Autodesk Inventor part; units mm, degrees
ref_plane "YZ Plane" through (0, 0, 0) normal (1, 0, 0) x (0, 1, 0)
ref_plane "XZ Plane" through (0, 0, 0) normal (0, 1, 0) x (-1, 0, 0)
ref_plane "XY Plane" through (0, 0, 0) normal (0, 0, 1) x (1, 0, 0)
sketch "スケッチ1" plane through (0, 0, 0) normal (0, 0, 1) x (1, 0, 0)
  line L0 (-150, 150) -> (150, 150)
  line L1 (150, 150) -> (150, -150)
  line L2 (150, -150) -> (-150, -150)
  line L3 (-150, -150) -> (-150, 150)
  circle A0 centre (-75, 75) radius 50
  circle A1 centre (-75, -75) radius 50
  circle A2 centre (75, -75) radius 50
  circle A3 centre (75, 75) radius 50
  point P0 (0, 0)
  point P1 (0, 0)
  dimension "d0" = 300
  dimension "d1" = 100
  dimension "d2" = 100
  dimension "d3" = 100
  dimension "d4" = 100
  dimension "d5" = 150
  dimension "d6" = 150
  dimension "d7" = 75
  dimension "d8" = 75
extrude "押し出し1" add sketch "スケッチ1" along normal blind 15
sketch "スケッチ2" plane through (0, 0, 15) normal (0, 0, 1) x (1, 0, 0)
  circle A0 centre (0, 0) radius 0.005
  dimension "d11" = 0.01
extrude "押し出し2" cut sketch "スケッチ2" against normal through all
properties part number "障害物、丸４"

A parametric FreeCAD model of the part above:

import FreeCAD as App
import Part
import Sketcher
from FreeCAD import Vector
Q = App.Units.Quantity


def add_polygon(sketch, points):
    """Adds a closed chain of lines whose ends are joined by coincident constraints."""
    first, n = sketch.GeometryCount, len(points)
    for a, b in zip(points, points[1:] + points[:1]):
        sketch.addGeometry(Part.LineSegment(App.Vector(*a, 0), App.Vector(*b, 0)), False)
    for i in range(n):
        sketch.addConstraint(Sketcher.Constraint("Coincident", first + i, 2, first + (i + 1) % n, 1))

doc = App.newDocument("Part")
params = doc.addObject("Spreadsheet::Sheet", "Params")
for row, (alias, value) in enumerate([
    ("sketch1_diameter", "100 mm"),
    ("sketch1_width", "300 mm"),
    ("pad1_length", "15 mm"),
    ("sketch2_diameter", "0.01 mm"),
], start=1):
    params.set(f"A{row}", alias)
    params.set(f"B{row}", "=" + value)
    params.setAlias(f"B{row}", alias)

body = doc.addObject("PartDesign::Body", "Body")

sketch1 = body.newObject("Sketcher::SketchObject", "Sketch")
sketch1.AttachmentSupport = (doc.getObject("XY_Plane"), [""])
sketch1.MapMode = "FlatFace"
add_polygon(sketch1, [(150, 150), (-150, 150), (-150, -150), (150, -150)])
sketch1.addGeometry(Part.Circle(Vector(-75, -75, 0), Vector(0, 0, 1), 50), False)
sketch1.addGeometry(Part.Circle(Vector(75, -75, 0), Vector(0, 0, 1), 50), False)
sketch1.addGeometry(Part.Circle(Vector(-75, 75, 0), Vector(0, 0, 1), 50), False)
sketch1.addGeometry(Part.Circle(Vector(75, 75, 0), Vector(0, 0, 1), 50), False)
sketch1.addConstraint([
    Sketcher.Constraint("Horizontal", 0),
    Sketcher.Constraint("Vertical", 1),
    Sketcher.Constraint("Horizontal", 2),
    Sketcher.Constraint("Vertical", 3),
    Sketcher.Constraint("Equal", 4, 5),
    Sketcher.Constraint("Equal", 5, 6),
    Sketcher.Constraint("Equal", 6, 7),
    Sketcher.Constraint("Symmetric", 5, 3, 6, 3, -1, 1),
    Sketcher.Constraint("Symmetric", 4, 3, 7, 3, -1, 1),
    Sketcher.Constraint("Symmetric", 0, 2, 2, 2, -1, 1),
    Sketcher.Constraint("Symmetric", 4, 3, 5, 3, -2),
    Sketcher.Constraint("Equal", 2, 1),
    Sketcher.Constraint("Diameter", 4, Q("100 mm")),
    Sketcher.Constraint("DistanceX", 0, 2, 0, 1, Q("300 mm")),
    Sketcher.Constraint("DistanceX", 4, 3, -1, 1, Q("75 mm")),
    Sketcher.Constraint("DistanceY", 4, 3, -1, 1, Q("75 mm")),
])
sketch1.setExpression("Constraints[16]", "Params.sketch1_diameter")
sketch1.setExpression("Constraints[17]", "Params.sketch1_width")
pad1 = body.newObject("PartDesign::Pad", "Pad")
pad1.Profile = sketch1
pad1.setExpression("Length", "Params.pad1_length")

sketch2 = body.newObject("Sketcher::SketchObject", "Sketch001")
sketch2.AttachmentSupport = (doc.getObject("XY_Plane"), [""])
sketch2.MapMode = "FlatFace"
sketch2.AttachmentOffset = App.Placement(Vector(0, 0, 15), App.Rotation())
sketch2.addGeometry(Part.Circle(Vector(0, 0, 0), Vector(0, 0, 1), 0.005), False)
sketch2.addConstraint([
    Sketcher.Constraint("Coincident", 0, 3, -1, 1),
    Sketcher.Constraint("Diameter", 0, Q("0.01 mm")),
])
sketch2.setExpression("Constraints[1]", "Params.sketch2_diameter")
pocket1 = body.newObject("PartDesign::Pocket", "Pocket")
pocket1.Profile = sketch2
pocket1.Type = "ThroughAll"

doc.recompute()
